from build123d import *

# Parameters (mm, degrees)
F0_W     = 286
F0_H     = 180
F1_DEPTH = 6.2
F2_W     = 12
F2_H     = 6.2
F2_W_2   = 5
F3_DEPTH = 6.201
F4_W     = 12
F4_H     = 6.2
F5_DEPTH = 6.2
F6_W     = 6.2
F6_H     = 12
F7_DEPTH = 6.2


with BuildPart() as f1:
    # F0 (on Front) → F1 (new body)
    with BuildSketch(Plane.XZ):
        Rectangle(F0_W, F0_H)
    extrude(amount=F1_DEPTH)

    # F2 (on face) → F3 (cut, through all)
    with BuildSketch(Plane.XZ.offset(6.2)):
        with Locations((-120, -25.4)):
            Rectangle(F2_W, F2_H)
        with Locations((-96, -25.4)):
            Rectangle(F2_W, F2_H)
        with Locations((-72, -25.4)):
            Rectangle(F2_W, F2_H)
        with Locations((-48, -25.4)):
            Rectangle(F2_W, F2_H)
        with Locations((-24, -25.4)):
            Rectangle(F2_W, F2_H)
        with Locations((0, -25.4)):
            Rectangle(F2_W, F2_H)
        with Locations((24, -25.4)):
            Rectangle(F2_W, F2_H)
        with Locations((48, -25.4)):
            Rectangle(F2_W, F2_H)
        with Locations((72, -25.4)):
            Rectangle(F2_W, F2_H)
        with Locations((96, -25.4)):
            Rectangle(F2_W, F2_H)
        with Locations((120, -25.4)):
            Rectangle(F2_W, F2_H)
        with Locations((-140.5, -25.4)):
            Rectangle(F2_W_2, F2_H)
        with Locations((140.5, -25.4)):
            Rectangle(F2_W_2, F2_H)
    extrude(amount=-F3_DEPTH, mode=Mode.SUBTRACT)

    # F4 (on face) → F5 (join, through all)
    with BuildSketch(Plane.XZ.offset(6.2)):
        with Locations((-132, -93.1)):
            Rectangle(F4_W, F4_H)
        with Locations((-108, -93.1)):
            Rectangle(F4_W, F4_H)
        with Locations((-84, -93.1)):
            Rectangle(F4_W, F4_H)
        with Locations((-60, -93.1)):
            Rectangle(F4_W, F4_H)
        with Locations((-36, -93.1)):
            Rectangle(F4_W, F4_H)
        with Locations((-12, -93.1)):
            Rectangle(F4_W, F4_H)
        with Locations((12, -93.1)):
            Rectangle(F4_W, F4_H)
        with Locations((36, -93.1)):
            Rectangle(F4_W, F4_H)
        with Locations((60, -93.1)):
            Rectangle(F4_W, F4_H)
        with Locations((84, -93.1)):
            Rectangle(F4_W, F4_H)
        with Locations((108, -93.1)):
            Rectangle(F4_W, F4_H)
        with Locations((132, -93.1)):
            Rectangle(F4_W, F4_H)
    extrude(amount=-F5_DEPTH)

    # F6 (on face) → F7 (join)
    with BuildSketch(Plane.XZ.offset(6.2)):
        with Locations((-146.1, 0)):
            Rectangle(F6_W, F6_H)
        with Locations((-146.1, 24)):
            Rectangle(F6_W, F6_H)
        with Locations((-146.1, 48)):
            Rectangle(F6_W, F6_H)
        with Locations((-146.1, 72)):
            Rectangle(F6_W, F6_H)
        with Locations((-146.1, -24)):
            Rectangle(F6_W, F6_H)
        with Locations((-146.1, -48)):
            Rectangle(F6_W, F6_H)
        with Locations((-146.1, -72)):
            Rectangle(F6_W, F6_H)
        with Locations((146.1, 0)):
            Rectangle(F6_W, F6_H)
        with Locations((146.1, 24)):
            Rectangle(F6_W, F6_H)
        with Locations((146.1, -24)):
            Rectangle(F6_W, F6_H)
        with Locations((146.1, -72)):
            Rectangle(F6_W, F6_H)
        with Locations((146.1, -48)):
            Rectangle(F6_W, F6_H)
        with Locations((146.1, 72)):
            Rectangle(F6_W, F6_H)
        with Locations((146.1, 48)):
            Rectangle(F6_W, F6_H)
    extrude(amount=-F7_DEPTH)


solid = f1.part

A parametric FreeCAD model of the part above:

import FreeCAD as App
import Part
import Sketcher

V = App.Vector


def add_polygon(sketch, points):
    """Adds a closed chain of lines whose ends are joined by coincident constraints."""
    first, n = sketch.GeometryCount, len(points)
    for a, b in zip(points, points[1:] + points[:1]):
        sketch.addGeometry(Part.LineSegment(App.Vector(*a, 0), App.Vector(*b, 0)), False)
    for i in range(n):
        sketch.addConstraint(Sketcher.Constraint("Coincident", first + i, 2, first + (i + 1) % n, 1))

doc = App.newDocument("Part")
body = doc.addObject("PartDesign::Body", "Body")

sketch1 = body.newObject("Sketcher::SketchObject", "Sketch")
sketch1.AttachmentSupport = (doc.getObject("XZ_Plane"), [""])
sketch1.MapMode = "FlatFace"
add_polygon(sketch1, [(-143, 90), (-143, -90), (143, -90), (143, 90)])
sketch1.addConstraint(Sketcher.Constraint("Vertical", 0))
sketch1.addConstraint(Sketcher.Constraint("Horizontal", 1))
sketch1.addConstraint(Sketcher.Constraint("Vertical", 2))
sketch1.addConstraint(Sketcher.Constraint("Horizontal", 3))
sketch1.addConstraint(Sketcher.Constraint("Symmetric", 0, 2, 2, 2, -1, 1))
sketch1.addConstraint(Sketcher.Constraint("DistanceX", 1, 1, 1, 2, 286.0))
sketch1.addConstraint(Sketcher.Constraint("DistanceY", 0, 2, 0, 1, 180.0))
pad1 = body.newObject("PartDesign::Pad", "Pad")
pad1.Profile = sketch1
pad1.Length = 6.2

sketch2 = body.newObject("Sketcher::SketchObject", "Sketch001")
sketch2.AttachmentSupport = (doc.getObject("XZ_Plane"), [""])
sketch2.MapMode = "FlatFace"
sketch2.AttachmentOffset = App.Placement(V(0, 0, 6.2), App.Rotation())
add_polygon(sketch2, [(-126, -22), (-126, -28), (-114, -28), (-114, -22)])
add_polygon(sketch2, [(-102, -22), (-102, -28), (-90, -28), (-90, -22)])
add_polygon(sketch2, [(-78, -22), (-78, -28), (-66, -28), (-66, -22)])
add_polygon(sketch2, [(-54, -22), (-54, -28), (-42, -28), (-42, -22)])
add_polygon(sketch2, [(-30, -22), (-30, -28), (-18, -28), (-18, -22)])
add_polygon(sketch2, [(-6, -22), (-6, -28), (6, -28), (6, -22)])
add_polygon(sketch2, [(18, -22), (18, -28), (30, -28), (30, -22)])
add_polygon(sketch2, [(42, -22), (42, -28), (54, -28), (54, -22)])
add_polygon(sketch2, [(66, -22), (66, -28), (78, -28), (78, -22)])
add_polygon(sketch2, [(90, -22), (90, -28), (102, -28), (102, -22)])
add_polygon(sketch2, [(114, -22), (114, -28), (126, -28), (126, -22)])
add_polygon(sketch2, [(-143, -22), (-143, -28), (-138, -28), (-138, -22)])
add_polygon(sketch2, [(138, -22), (138, -28), (143, -28), (143, -22)])
sketch2.addConstraint(Sketcher.Constraint("Vertical", 0))
sketch2.addConstraint(Sketcher.Constraint("Horizontal", 1))
sketch2.addConstraint(Sketcher.Constraint("Vertical", 2))
sketch2.addConstraint(Sketcher.Constraint("Horizontal", 3))
sketch2.addConstraint(Sketcher.Constraint("Vertical", 4))
sketch2.addConstraint(Sketcher.Constraint("Horizontal", 5))
sketch2.addConstraint(Sketcher.Constraint("Vertical", 6))
sketch2.addConstraint(Sketcher.Constraint("Horizontal", 7))
sketch2.addConstraint(Sketcher.Constraint("Vertical", 8))
sketch2.addConstraint(Sketcher.Constraint("Horizontal", 9))
sketch2.addConstraint(Sketcher.Constraint("Vertical", 10))
sketch2.addConstraint(Sketcher.Constraint("Horizontal", 11))
sketch2.addConstraint(Sketcher.Constraint("Vertical", 12))
sketch2.addConstraint(Sketcher.Constraint("Horizontal", 13))
sketch2.addConstraint(Sketcher.Constraint("Vertical", 14))
sketch2.addConstraint(Sketcher.Constraint("Horizontal", 15))
sketch2.addConstraint(Sketcher.Constraint("Vertical", 16))
sketch2.addConstraint(Sketcher.Constraint("Horizontal", 17))
sketch2.addConstraint(Sketcher.Constraint("Vertical", 18))
sketch2.addConstraint(Sketcher.Constraint("Horizontal", 19))
sketch2.addConstraint(Sketcher.Constraint("Vertical", 20))
sketch2.addConstraint(Sketcher.Constraint("Horizontal", 21))
sketch2.addConstraint(Sketcher.Constraint("Vertical", 22))
sketch2.addConstraint(Sketcher.Constraint("Horizontal", 23))
sketch2.addConstraint(Sketcher.Constraint("Vertical", 24))
sketch2.addConstraint(Sketcher.Constraint("Horizontal", 25))
sketch2.addConstraint(Sketcher.Constraint("Vertical", 26))
sketch2.addConstraint(Sketcher.Constraint("Horizontal", 27))
sketch2.addConstraint(Sketcher.Constraint("Vertical", 28))
sketch2.addConstraint(Sketcher.Constraint("Horizontal", 29))
sketch2.addConstraint(Sketcher.Constraint("Vertical", 30))
sketch2.addConstraint(Sketcher.Constraint("Horizontal", 31))
sketch2.addConstraint(Sketcher.Constraint("Vertical", 32))
sketch2.addConstraint(Sketcher.Constraint("Horizontal", 33))
sketch2.addConstraint(Sketcher.Constraint("Vertical", 34))
sketch2.addConstraint(Sketcher.Constraint("Horizontal", 35))
sketch2.addConstraint(Sketcher.Constraint("Vertical", 36))
sketch2.addConstraint(Sketcher.Constraint("Horizontal", 37))
sketch2.addConstraint(Sketcher.Constraint("Vertical", 38))
sketch2.addConstraint(Sketcher.Constraint("Horizontal", 39))
sketch2.addConstraint(Sketcher.Constraint("Vertical", 40))
sketch2.addConstraint(Sketcher.Constraint("Horizontal", 41))
sketch2.addConstraint(Sketcher.Constraint("Vertical", 42))
sketch2.addConstraint(Sketcher.Constraint("Horizontal", 43))
sketch2.addConstraint(Sketcher.Constraint("Vertical", 44))
sketch2.addConstraint(Sketcher.Constraint("Horizontal", 45))
sketch2.addConstraint(Sketcher.Constraint("Vertical", 46))
sketch2.addConstraint(Sketcher.Constraint("Horizontal", 47))
sketch2.addConstraint(Sketcher.Constraint("Vertical", 48))
sketch2.addConstraint(Sketcher.Constraint("Horizontal", 49))
sketch2.addConstraint(Sketcher.Constraint("Vertical", 50))
sketch2.addConstraint(Sketcher.Constraint("Horizontal", 51))
sketch2.addConstraint(Sketcher.Constraint("Symmetric", 17, 2, 24, 2, -2))
sketch2.addConstraint(Sketcher.Constraint("Symmetric", 19, 2, 26, 2, -2))
sketch2.addConstraint(Sketcher.Constraint("Symmetric", 13, 2, 28, 2, -2))
sketch2.addConstraint(Sketcher.Constraint("Symmetric", 15, 2, 30, 2, -2))
sketch2.addConstraint(Sketcher.Constraint("Symmetric", 9, 2, 32, 2, -2))
sketch2.addConstraint(Sketcher.Constraint("Symmetric", 11, 2, 34, 2, -2))
sketch2.addConstraint(Sketcher.Constraint("Symmetric", 5, 2, 36, 2, -2))
sketch2.addConstraint(Sketcher.Constraint("Symmetric", 7, 2, 38, 2, -2))
sketch2.addConstraint(Sketcher.Constraint("Symmetric", 1, 2, 40, 2, -2))
sketch2.addConstraint(Sketcher.Constraint("Symmetric", 3, 2, 42, 2, -2))
sketch2.addConstraint(Sketcher.Constraint("Symmetric", 45, 2, 48, 2, -2))
sketch2.addConstraint(Sketcher.Constraint("Symmetric", 47, 2, 50, 2, -2))
sketch2.addConstraint(Sketcher.Constraint("Horizontal", 1, 2, 4, 2))
sketch2.addConstraint(Sketcher.Constraint("Horizontal", 3, 2, 6, 2))
sketch2.addConstraint(Sketcher.Constraint("Horizontal", 5, 2, 8, 2))
sketch2.addConstraint(Sketcher.Constraint("Horizontal", 7, 2, 10, 2))
sketch2.addConstraint(Sketcher.Constraint("Horizontal", 9, 2, 12, 2))
sketch2.addConstraint(Sketcher.Constraint("Horizontal", 11, 2, 14, 2))
sketch2.addConstraint(Sketcher.Constraint("Horizontal", 13, 2, 16, 2))
sketch2.addConstraint(Sketcher.Constraint("Horizontal", 15, 2, 18, 2))
sketch2.addConstraint(Sketcher.Constraint("Horizontal", 17, 2, 20, 2))
sketch2.addConstraint(Sketcher.Constraint("Horizontal", 19, 2, 22, 2))
sketch2.addConstraint(Sketcher.Constraint("Horizontal", 41, 2, 44, 2))
sketch2.addConstraint(Sketcher.Constraint("Horizontal", 43, 2, 46, 2))
sketch2.addConstraint(Sketcher.Constraint("Equal", 3, 5))
sketch2.addConstraint(Sketcher.Constraint("Equal", 7, 9))
sketch2.addConstraint(Sketcher.Constraint("Equal", 11, 13))
sketch2.addConstraint(Sketcher.Constraint("Equal", 15, 17))
sketch2.addConstraint(Sketcher.Constraint("Equal", 19, 21))
sketch2.addConstraint(Sketcher.Constraint("DistanceX", 1, 1, 1, 2, 12.0))
sketch2.addConstraint(Sketcher.Constraint("DistanceX", 45, 1, 45, 2, 5.0))
sketch2.addConstraint(Sketcher.Constraint("DistanceY", 0, 2, 0, 1, 6.2))
sketch2.addConstraint(Sketcher.Constraint("DistanceX", 0, 2, -1, 1, 126.0))
sketch2.addConstraint(Sketcher.Constraint("DistanceX", 4, 2, -1, 1, 102.0))
sketch2.addConstraint(Sketcher.Constraint("DistanceX", 8, 2, -1, 1, 78.0))
sketch2.addConstraint(Sketcher.Constraint("DistanceX", 12, 2, -1, 1, 54.0))
sketch2.addConstraint(Sketcher.Constraint("DistanceX", 16, 2, -1, 1, 30.0))
sketch2.addConstraint(Sketcher.Constraint("DistanceX", 20, 2, -1, 1, 6.0))
sketch2.addConstraint(Sketcher.Constraint("DistanceX", 44, 2, -1, 1, 143.0))
sketch2.addConstraint(Sketcher.Constraint("DistanceY", 0, 2, -1, 1, 28.5))
pocket1 = body.newObject("PartDesign::Pocket", "Pocket")
pocket1.Profile = sketch2
pocket1.Type = "ThroughAll"

sketch3 = body.newObject("Sketcher::SketchObject", "Sketch002")
sketch3.AttachmentSupport = (doc.getObject("XZ_Plane"), [""])
sketch3.MapMode = "FlatFace"
sketch3.AttachmentOffset = App.Placement(V(0, 0, 6.2), App.Rotation())
add_polygon(sketch3, [(-138, -90), (-138, -96), (-126, -96), (-126, -90)])
add_polygon(sketch3, [(-114, -90), (-114, -96), (-102, -96), (-102, -90)])
add_polygon(sketch3, [(-90, -90), (-90, -96), (-78, -96), (-78, -90)])
add_polygon(sketch3, [(-66, -90), (-66, -96), (-54, -96), (-54, -90)])
add_polygon(sketch3, [(-42, -90), (-42, -96), (-30, -96), (-30, -90)])
add_polygon(sketch3, [(-18, -90), (-18, -96), (-6, -96), (-6, -90)])
add_polygon(sketch3, [(6, -90), (6, -96), (18, -96), (18, -90)])
add_polygon(sketch3, [(30, -90), (30, -96), (42, -96), (42, -90)])
add_polygon(sketch3, [(54, -90), (54, -96), (66, -96), (66, -90)])
add_polygon(sketch3, [(78, -90), (78, -96), (90, -96), (90, -90)])
add_polygon(sketch3, [(102, -90), (102, -96), (114, -96), (114, -90)])
add_polygon(sketch3, [(126, -90), (126, -96), (138, -96), (138, -90)])
sketch3.addConstraint(Sketcher.Constraint("Vertical", 0))
sketch3.addConstraint(Sketcher.Constraint("Horizontal", 1))
sketch3.addConstraint(Sketcher.Constraint("Vertical", 2))
sketch3.addConstraint(Sketcher.Constraint("Horizontal", 3))
sketch3.addConstraint(Sketcher.Constraint("Vertical", 4))
sketch3.addConstraint(Sketcher.Constraint("Horizontal", 5))
sketch3.addConstraint(Sketcher.Constraint("Vertical", 6))
sketch3.addConstraint(Sketcher.Constraint("Horizontal", 7))
sketch3.addConstraint(Sketcher.Constraint("Vertical", 8))
sketch3.addConstraint(Sketcher.Constraint("Horizontal", 9))
sketch3.addConstraint(Sketcher.Constraint("Vertical", 10))
sketch3.addConstraint(Sketcher.Constraint("Horizontal", 11))
sketch3.addConstraint(Sketcher.Constraint("Vertical", 12))
sketch3.addConstraint(Sketcher.Constraint("Horizontal", 13))
sketch3.addConstraint(Sketcher.Constraint("Vertical", 14))
sketch3.addConstraint(Sketcher.Constraint("Horizontal", 15))
sketch3.addConstraint(Sketcher.Constraint("Vertical", 16))
sketch3.addConstraint(Sketcher.Constraint("Horizontal", 17))
sketch3.addConstraint(Sketcher.Constraint("Vertical", 18))
sketch3.addConstraint(Sketcher.Constraint("Horizontal", 19))
sketch3.addConstraint(Sketcher.Constraint("Vertical", 20))
sketch3.addConstraint(Sketcher.Constraint("Horizontal", 21))
sketch3.addConstraint(Sketcher.Constraint("Vertical", 22))
sketch3.addConstraint(Sketcher.Constraint("Horizontal", 23))
sketch3.addConstraint(Sketcher.Constraint("Vertical", 24))
sketch3.addConstraint(Sketcher.Constraint("Horizontal", 25))
sketch3.addConstraint(Sketcher.Constraint("Vertical", 26))
sketch3.addConstraint(Sketcher.Constraint("Horizontal", 27))
sketch3.addConstraint(Sketcher.Constraint("Vertical", 28))
sketch3.addConstraint(Sketcher.Constraint("Horizontal", 29))
sketch3.addConstraint(Sketcher.Constraint("Vertical", 30))
sketch3.addConstraint(Sketcher.Constraint("Horizontal", 31))
sketch3.addConstraint(Sketcher.Constraint("Vertical", 32))
sketch3.addConstraint(Sketcher.Constraint("Horizontal", 33))
sketch3.addConstraint(Sketcher.Constraint("Vertical", 34))
sketch3.addConstraint(Sketcher.Constraint("Horizontal", 35))
sketch3.addConstraint(Sketcher.Constraint("Vertical", 36))
sketch3.addConstraint(Sketcher.Constraint("Horizontal", 37))
sketch3.addConstraint(Sketcher.Constraint("Vertical", 38))
sketch3.addConstraint(Sketcher.Constraint("Horizontal", 39))
sketch3.addConstraint(Sketcher.Constraint("Vertical", 40))
sketch3.addConstraint(Sketcher.Constraint("Horizontal", 41))
sketch3.addConstraint(Sketcher.Constraint("Vertical", 42))
sketch3.addConstraint(Sketcher.Constraint("Horizontal", 43))
sketch3.addConstraint(Sketcher.Constraint("Vertical", 44))
sketch3.addConstraint(Sketcher.Constraint("Horizontal", 45))
sketch3.addConstraint(Sketcher.Constraint("Vertical", 46))
sketch3.addConstraint(Sketcher.Constraint("Horizontal", 47))
sketch3.addConstraint(Sketcher.Constraint("Symmetric", 21, 2, 24, 2, -2))
sketch3.addConstraint(Sketcher.Constraint("Symmetric", 23, 2, 26, 2, -2))
sketch3.addConstraint(Sketcher.Constraint("Symmetric", 17, 2, 28, 2, -2))
sketch3.addConstraint(Sketcher.Constraint("Symmetric", 19, 2, 30, 2, -2))
sketch3.addConstraint(Sketcher.Constraint("Symmetric", 13, 2, 32, 2, -2))
sketch3.addConstraint(Sketcher.Constraint("Symmetric", 15, 2, 34, 2, -2))
sketch3.addConstraint(Sketcher.Constraint("Symmetric", 9, 2, 36, 2, -2))
sketch3.addConstraint(Sketcher.Constraint("Symmetric", 11, 2, 38, 2, -2))
sketch3.addConstraint(Sketcher.Constraint("Symmetric", 5, 2, 40, 2, -2))
sketch3.addConstraint(Sketcher.Constraint("Symmetric", 7, 2, 42, 2, -2))
sketch3.addConstraint(Sketcher.Constraint("Symmetric", 1, 2, 44, 2, -2))
sketch3.addConstraint(Sketcher.Constraint("Symmetric", 3, 2, 46, 2, -2))
sketch3.addConstraint(Sketcher.Constraint("Horizontal", 1, 2, 4, 2))
sketch3.addConstraint(Sketcher.Constraint("Horizontal", 3, 2, 6, 2))
sketch3.addConstraint(Sketcher.Constraint("Horizontal", 5, 2, 8, 2))
sketch3.addConstraint(Sketcher.Constraint("Horizontal", 7, 2, 10, 2))
sketch3.addConstraint(Sketcher.Constraint("Horizontal", 9, 2, 12, 2))
sketch3.addConstraint(Sketcher.Constraint("Horizontal", 11, 2, 14, 2))
sketch3.addConstraint(Sketcher.Constraint("Horizontal", 13, 2, 16, 2))
sketch3.addConstraint(Sketcher.Constraint("Horizontal", 15, 2, 18, 2))
sketch3.addConstraint(Sketcher.Constraint("Horizontal", 17, 2, 20, 2))
sketch3.addConstraint(Sketcher.Constraint("Horizontal", 19, 2, 22, 2))
sketch3.addConstraint(Sketcher.Constraint("Equal", 3, 5))
sketch3.addConstraint(Sketcher.Constraint("Equal", 7, 9))
sketch3.addConstraint(Sketcher.Constraint("Equal", 11, 13))
sketch3.addConstraint(Sketcher.Constraint("Equal", 15, 17))
sketch3.addConstraint(Sketcher.Constraint("Equal", 19, 21))
sketch3.addConstraint(Sketcher.Constraint("DistanceX", 1, 1, 1, 2, 12.0))
sketch3.addConstraint(Sketcher.Constraint("DistanceY", 0, 2, 0, 1, 6.2))
sketch3.addConstraint(Sketcher.Constraint("DistanceX", 0, 2, -1, 1, 138.0))
sketch3.addConstraint(Sketcher.Constraint("DistanceY", 2, 2, -1, 1, 90.0))
sketch3.addConstraint(Sketcher.Constraint("DistanceX", 4, 2, -1, 1, 114.0))
sketch3.addConstraint(Sketcher.Constraint("DistanceX", 8, 2, -1, 1, 90.0))
sketch3.addConstraint(Sketcher.Constraint("DistanceX", 12, 2, -1, 1, 66.0))
sketch3.addConstraint(Sketcher.Constraint("DistanceX", 16, 2, -1, 1, 42.0))
sketch3.addConstraint(Sketcher.Constraint("DistanceX", 20, 2, -1, 1, 18.0))
pad2 = body.newObject("PartDesign::Pad", "Pad001")
pad2.Profile = sketch3
pad2.Length = 6.2
pad2.Reversed = True

sketch4 = body.newObject("Sketcher::SketchObject", "Sketch003")
sketch4.AttachmentSupport = (doc.getObject("XZ_Plane"), [""])
sketch4.MapMode = "FlatFace"
sketch4.AttachmentOffset = App.Placement(V(0, 0, 6.2), App.Rotation())
add_polygon(sketch4, [(-149, 6), (-149, -6), (-143, -6), (-143, 6)])
add_polygon(sketch4, [(-149, 30), (-149, 18), (-143, 18), (-143, 30)])
add_polygon(sketch4, [(-149, 54), (-149, 42), (-143, 42), (-143, 54)])
add_polygon(sketch4, [(-149, 78), (-149, 66), (-143, 66), (-143, 78)])
add_polygon(sketch4, [(-149, -18), (-149, -30), (-143, -30), (-143, -18)])
add_polygon(sketch4, [(-149, -42), (-149, -54), (-143, -54), (-143, -42)])
add_polygon(sketch4, [(-149, -66), (-149, -78), (-143, -78), (-143, -66)])
add_polygon(sketch4, [(143, 6), (143, -6), (149, -6), (149, 6)])
add_polygon(sketch4, [(143, 30), (143, 18), (149, 18), (149, 30)])
add_polygon(sketch4, [(143, -18), (143, -30), (149, -30), (149, -18)])
add_polygon(sketch4, [(143, -66), (143, -78), (149, -78), (149, -66)])
add_polygon(sketch4, [(143, -42), (143, -54), (149, -54), (149, -42)])
add_polygon(sketch4, [(143, 78), (143, 66), (149, 66), (149, 78)])
add_polygon(sketch4, [(143, 54), (143, 42), (149, 42), (149, 54)])
sketch4.addConstraint(Sketcher.Constraint("Vertical", 0))
sketch4.addConstraint(Sketcher.Constraint("Horizontal", 1))
sketch4.addConstraint(Sketcher.Constraint("Vertical", 2))
sketch4.addConstraint(Sketcher.Constraint("Horizontal", 3))
sketch4.addConstraint(Sketcher.Constraint("Vertical", 4))
sketch4.addConstraint(Sketcher.Constraint("Horizontal", 5))
sketch4.addConstraint(Sketcher.Constraint("Vertical", 6))
sketch4.addConstraint(Sketcher.Constraint("Horizontal", 7))
sketch4.addConstraint(Sketcher.Constraint("Vertical", 8))
sketch4.addConstraint(Sketcher.Constraint("Horizontal", 9))
sketch4.addConstraint(Sketcher.Constraint("Vertical", 10))
sketch4.addConstraint(Sketcher.Constraint("Horizontal", 11))
sketch4.addConstraint(Sketcher.Constraint("Vertical", 12))
sketch4.addConstraint(Sketcher.Constraint("Horizontal", 13))
sketch4.addConstraint(Sketcher.Constraint("Vertical", 14))
sketch4.addConstraint(Sketcher.Constraint("Horizontal", 15))
sketch4.addConstraint(Sketcher.Constraint("Vertical", 16))
sketch4.addConstraint(Sketcher.Constraint("Horizontal", 17))
sketch4.addConstraint(Sketcher.Constraint("Vertical", 18))
sketch4.addConstraint(Sketcher.Constraint("Horizontal", 19))
sketch4.addConstraint(Sketcher.Constraint("Vertical", 20))
sketch4.addConstraint(Sketcher.Constraint("Horizontal", 21))
sketch4.addConstraint(Sketcher.Constraint("Vertical", 22))
sketch4.addConstraint(Sketcher.Constraint("Horizontal", 23))
sketch4.addConstraint(Sketcher.Constraint("Vertical", 24))
sketch4.addConstraint(Sketcher.Constraint("Horizontal", 25))
sketch4.addConstraint(Sketcher.Constraint("Vertical", 26))
sketch4.addConstraint(Sketcher.Constraint("Horizontal", 27))
sketch4.addConstraint(Sketcher.Constraint("Vertical", 28))
sketch4.addConstraint(Sketcher.Constraint("Horizontal", 29))
sketch4.addConstraint(Sketcher.Constraint("Vertical", 30))
sketch4.addConstraint(Sketcher.Constraint("Horizontal", 31))
sketch4.addConstraint(Sketcher.Constraint("Vertical", 32))
sketch4.addConstraint(Sketcher.Constraint("Horizontal", 33))
sketch4.addConstraint(Sketcher.Constraint("Vertical", 34))
sketch4.addConstraint(Sketcher.Constraint("Horizontal", 35))
sketch4.addConstraint(Sketcher.Constraint("Vertical", 36))
sketch4.addConstraint(Sketcher.Constraint("Horizontal", 37))
sketch4.addConstraint(Sketcher.Constraint("Vertical", 38))
sketch4.addConstraint(Sketcher.Constraint("Horizontal", 39))
sketch4.addConstraint(Sketcher.Constraint("Vertical", 40))
sketch4.addConstraint(Sketcher.Constraint("Horizontal", 41))
sketch4.addConstraint(Sketcher.Constraint("Vertical", 42))
sketch4.addConstraint(Sketcher.Constraint("Horizontal", 43))
sketch4.addConstraint(Sketcher.Constraint("Vertical", 44))
sketch4.addConstraint(Sketcher.Constraint("Horizontal", 45))
sketch4.addConstraint(Sketcher.Constraint("Vertical", 46))
sketch4.addConstraint(Sketcher.Constraint("Horizontal", 47))
sketch4.addConstraint(Sketcher.Constraint("Vertical", 48))
sketch4.addConstraint(Sketcher.Constraint("Horizontal", 49))
sketch4.addConstraint(Sketcher.Constraint("Vertical", 50))
sketch4.addConstraint(Sketcher.Constraint("Horizontal", 51))
sketch4.addConstraint(Sketcher.Constraint("Vertical", 52))
sketch4.addConstraint(Sketcher.Constraint("Horizontal", 53))
sketch4.addConstraint(Sketcher.Constraint("Vertical", 54))
sketch4.addConstraint(Sketcher.Constraint("Horizontal", 55))
sketch4.addConstraint(Sketcher.Constraint("Symmetric", 2, 2, 28, 2, -1, 1))
sketch4.addConstraint(Sketcher.Constraint("Symmetric", 0, 2, 30, 2, -1, 1))
sketch4.addConstraint(Sketcher.Constraint("Symmetric", 18, 2, 32, 2, -1, 1))
sketch4.addConstraint(Sketcher.Constraint("Symmetric", 16, 2, 34, 2, -1, 1))
sketch4.addConstraint(Sketcher.Constraint("Symmetric", 6, 2, 36, 2, -1, 1))
sketch4.addConstraint(Sketcher.Constraint("Symmetric", 4, 2, 38, 2, -1, 1))
sketch4.addConstraint(Sketcher.Constraint("Symmetric", 14, 2, 40, 2, -1, 1))
sketch4.addConstraint(Sketcher.Constraint("Symmetric", 12, 2, 42, 2, -1, 1))
sketch4.addConstraint(Sketcher.Constraint("Symmetric", 10, 2, 44, 2, -1, 1))
sketch4.addConstraint(Sketcher.Constraint("Symmetric", 8, 2, 46, 2, -1, 1))
sketch4.addConstraint(Sketcher.Constraint("Symmetric", 26, 2, 48, 2, -1, 1))
sketch4.addConstraint(Sketcher.Constraint("Symmetric", 24, 2, 50, 2, -1, 1))
sketch4.addConstraint(Sketcher.Constraint("Symmetric", 22, 2, 52, 2, -1, 1))
sketch4.addConstraint(Sketcher.Constraint("Symmetric", 20, 2, 54, 2, -1, 1))
sketch4.addConstraint(Sketcher.Constraint("Symmetric", 5, 2, 32, 2, -2))
sketch4.addConstraint(Sketcher.Constraint("Symmetric", 7, 2, 34, 2, -2))
sketch4.addConstraint(Sketcher.Constraint("Symmetric", 25, 2, 40, 2, -2))
sketch4.addConstraint(Sketcher.Constraint("Symmetric", 27, 2, 42, 2, -2))
sketch4.addConstraint(Sketcher.Constraint("Symmetric", 21, 2, 44, 2, -2))
sketch4.addConstraint(Sketcher.Constraint("Symmetric", 23, 2, 46, 2, -2))
sketch4.addConstraint(Sketcher.Constraint("Horizontal", 1, 2, 28, 2))
sketch4.addConstraint(Sketcher.Constraint("Vertical", 3, 2, 4, 2))
sketch4.addConstraint(Sketcher.Constraint("Vertical", 2, 2, 5, 2))
sketch4.addConstraint(Sketcher.Constraint("Vertical", 7, 2, 8, 2))
sketch4.addConstraint(Sketcher.Constraint("Vertical", 6, 2, 9, 2))
sketch4.addConstraint(Sketcher.Constraint("Vertical", 11, 2, 12, 2))
sketch4.addConstraint(Sketcher.Constraint("Vertical", 10, 2, 13, 2))
sketch4.addConstraint(Sketcher.Constraint("Equal", 2, 4))
sketch4.addConstraint(Sketcher.Constraint("Equal", 6, 8))
sketch4.addConstraint(Sketcher.Constraint("Equal", 10, 12))
sketch4.addConstraint(Sketcher.Constraint("DistanceY", 0, 2, 0, 1, 12.0))
sketch4.addConstraint(Sketcher.Constraint("DistanceX", 1, 1, 1, 2, 6.2))
sketch4.addConstraint(Sketcher.Constraint("DistanceX", 1, 2, -1, 1, 143.0))
sketch4.addConstraint(Sketcher.Constraint("DistanceY", -1, 1, 4, 2, 18.0))
sketch4.addConstraint(Sketcher.Constraint("DistanceY", -1, 1, 8, 2, 42.0))
sketch4.addConstraint(Sketcher.Constraint("DistanceY", -1, 1, 12, 2, 66.0))
pad3 = body.newObject("PartDesign::Pad", "Pad002")
pad3.Profile = sketch4
pad3.Length = 6.2
pad3.Reversed = True

doc.recompute()
